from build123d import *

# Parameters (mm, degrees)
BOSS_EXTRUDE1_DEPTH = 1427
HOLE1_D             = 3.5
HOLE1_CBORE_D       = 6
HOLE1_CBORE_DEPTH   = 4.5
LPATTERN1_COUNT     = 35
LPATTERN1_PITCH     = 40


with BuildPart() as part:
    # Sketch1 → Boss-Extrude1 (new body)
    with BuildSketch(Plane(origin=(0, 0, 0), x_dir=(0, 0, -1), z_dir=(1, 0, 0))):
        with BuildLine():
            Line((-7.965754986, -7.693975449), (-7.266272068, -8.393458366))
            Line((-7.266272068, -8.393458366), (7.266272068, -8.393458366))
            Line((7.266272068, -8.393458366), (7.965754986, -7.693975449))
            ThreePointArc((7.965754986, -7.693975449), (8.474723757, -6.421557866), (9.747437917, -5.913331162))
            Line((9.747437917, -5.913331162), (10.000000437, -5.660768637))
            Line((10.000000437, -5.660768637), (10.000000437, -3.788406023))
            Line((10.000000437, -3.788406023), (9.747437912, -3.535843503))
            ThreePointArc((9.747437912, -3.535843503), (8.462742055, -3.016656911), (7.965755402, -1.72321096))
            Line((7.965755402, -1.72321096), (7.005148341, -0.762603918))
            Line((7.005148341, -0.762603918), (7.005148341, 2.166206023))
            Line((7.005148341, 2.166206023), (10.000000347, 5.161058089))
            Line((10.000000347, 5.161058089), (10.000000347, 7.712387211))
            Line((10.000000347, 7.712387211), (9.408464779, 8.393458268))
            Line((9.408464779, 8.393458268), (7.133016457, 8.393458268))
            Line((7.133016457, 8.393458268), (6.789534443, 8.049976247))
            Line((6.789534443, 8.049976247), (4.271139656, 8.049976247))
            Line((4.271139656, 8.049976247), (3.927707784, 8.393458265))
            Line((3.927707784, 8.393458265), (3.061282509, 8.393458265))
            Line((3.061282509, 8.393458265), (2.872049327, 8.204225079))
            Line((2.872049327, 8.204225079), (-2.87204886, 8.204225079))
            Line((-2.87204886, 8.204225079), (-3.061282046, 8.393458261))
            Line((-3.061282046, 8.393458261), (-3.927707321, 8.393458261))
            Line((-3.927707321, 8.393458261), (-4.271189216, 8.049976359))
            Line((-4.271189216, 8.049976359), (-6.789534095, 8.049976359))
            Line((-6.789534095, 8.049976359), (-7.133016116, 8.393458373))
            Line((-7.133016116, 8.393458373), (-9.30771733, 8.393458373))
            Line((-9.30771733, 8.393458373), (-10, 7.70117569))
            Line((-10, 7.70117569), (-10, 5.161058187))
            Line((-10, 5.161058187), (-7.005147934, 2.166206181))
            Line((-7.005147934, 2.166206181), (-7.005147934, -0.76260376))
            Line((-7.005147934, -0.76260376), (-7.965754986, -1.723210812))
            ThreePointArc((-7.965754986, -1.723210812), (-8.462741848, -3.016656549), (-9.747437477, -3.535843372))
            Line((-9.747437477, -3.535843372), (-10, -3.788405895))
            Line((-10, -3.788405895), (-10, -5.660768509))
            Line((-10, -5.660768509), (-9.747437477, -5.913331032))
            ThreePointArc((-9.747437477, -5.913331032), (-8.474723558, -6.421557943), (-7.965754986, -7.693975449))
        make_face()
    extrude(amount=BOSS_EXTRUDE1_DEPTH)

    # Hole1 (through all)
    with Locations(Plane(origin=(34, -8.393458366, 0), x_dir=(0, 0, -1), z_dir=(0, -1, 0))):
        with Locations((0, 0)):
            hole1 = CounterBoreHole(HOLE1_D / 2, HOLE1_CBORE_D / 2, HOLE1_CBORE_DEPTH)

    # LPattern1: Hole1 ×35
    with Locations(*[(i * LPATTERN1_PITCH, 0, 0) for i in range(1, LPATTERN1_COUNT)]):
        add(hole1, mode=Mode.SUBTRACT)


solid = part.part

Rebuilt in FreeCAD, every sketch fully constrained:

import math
import FreeCAD as App
import Part
import Sketcher
Q = App.Units.Quantity

doc = App.newDocument("Part")
body = doc.addObject("PartDesign::Body", "Body")

sketch1 = body.newObject("Sketcher::SketchObject", "Sketch")
sketch1.AttachmentSupport = (doc.getObject("YZ_Plane"), [""])
sketch1.MapMode = "FlatFace"
sketch1.addGeometry(Part.LineSegment(App.Vector(-7.69, 7.97, 0), App.Vector(-8.39, 7.27, 0)), False)
sketch1.addGeometry(Part.LineSegment(App.Vector(-8.39, 7.27, 0), App.Vector(-8.39, -7.27, 0)), False)
sketch1.addGeometry(Part.LineSegment(App.Vector(-8.39, -7.27, 0), App.Vector(-7.69, -7.97, 0)), False)
sketch1.addGeometry(Part.ArcOfCircle(Part.Circle(App.Vector(-7.65, -9.7, 0), App.Vector(0, 0, 1), 1.74), math.radians(-1), math.radians(91)), False)
sketch1.addGeometry(Part.LineSegment(App.Vector(-5.91, -9.75, 0), App.Vector(-5.66, -10, 0)), False)
sketch1.addGeometry(Part.LineSegment(App.Vector(-5.66, -10, 0), App.Vector(-3.79, -10, 0)), False)
sketch1.addGeometry(Part.LineSegment(App.Vector(-3.79, -10, 0), App.Vector(-3.54, -9.75, 0)), False)
sketch1.addGeometry(Part.ArcOfCircle(Part.Circle(App.Vector(-1.8, -9.7, 0), App.Vector(0, 0, 1), 1.74), math.radians(88), math.radians(181)), False)
sketch1.addGeometry(Part.LineSegment(App.Vector(-1.72, -7.97, 0), App.Vector(-0.76, -7.01, 0)), False)
sketch1.addGeometry(Part.LineSegment(App.Vector(-0.76, -7.01, 0), App.Vector(2.17, -7.01, 0)), False)
sketch1.addGeometry(Part.LineSegment(App.Vector(2.17, -7.01, 0), App.Vector(5.16, -10, 0)), False)
sketch1.addGeometry(Part.LineSegment(App.Vector(5.16, -10, 0), App.Vector(7.71, -10, 0)), False)
sketch1.addGeometry(Part.LineSegment(App.Vector(7.71, -10, 0), App.Vector(8.39, -9.41, 0)), False)
sketch1.addGeometry(Part.LineSegment(App.Vector(8.39, -9.41, 0), App.Vector(8.39, -7.13, 0)), False)
sketch1.addGeometry(Part.LineSegment(App.Vector(8.39, -7.13, 0), App.Vector(8.05, -6.79, 0)), False)
sketch1.addGeometry(Part.LineSegment(App.Vector(8.05, -6.79, 0), App.Vector(8.05, -4.27, 0)), False)
sketch1.addGeometry(Part.LineSegment(App.Vector(8.05, -4.27, 0), App.Vector(8.39, -3.93, 0)), False)
sketch1.addGeometry(Part.LineSegment(App.Vector(8.39, -3.93, 0), App.Vector(8.39, -3.06, 0)), False)
sketch1.addGeometry(Part.LineSegment(App.Vector(8.39, -3.06, 0), App.Vector(8.2, -2.87, 0)), False)
sketch1.addGeometry(Part.LineSegment(App.Vector(8.2, -2.87, 0), App.Vector(8.2, 2.87, 0)), False)
sketch1.addGeometry(Part.LineSegment(App.Vector(8.2, 2.87, 0), App.Vector(8.39, 3.06, 0)), False)
sketch1.addGeometry(Part.LineSegment(App.Vector(8.39, 3.06, 0), App.Vector(8.39, 3.93, 0)), False)
sketch1.addGeometry(Part.LineSegment(App.Vector(8.39, 3.93, 0), App.Vector(8.05, 4.27, 0)), False)
sketch1.addGeometry(Part.LineSegment(App.Vector(8.05, 4.27, 0), App.Vector(8.05, 6.79, 0)), False)
sketch1.addGeometry(Part.LineSegment(App.Vector(8.05, 6.79, 0), App.Vector(8.39, 7.13, 0)), False)
sketch1.addGeometry(Part.LineSegment(App.Vector(8.39, 7.13, 0), App.Vector(8.39, 9.31, 0)), False)
sketch1.addGeometry(Part.LineSegment(App.Vector(8.39, 9.31, 0), App.Vector(7.7, 10, 0)), False)
sketch1.addGeometry(Part.LineSegment(App.Vector(7.7, 10, 0), App.Vector(5.16, 10, 0)), False)
sketch1.addGeometry(Part.LineSegment(App.Vector(5.16, 10, 0), App.Vector(2.17, 7.01, 0)), False)
sketch1.addGeometry(Part.LineSegment(App.Vector(2.17, 7.01, 0), App.Vector(-0.76, 7.01, 0)), False)
sketch1.addGeometry(Part.LineSegment(App.Vector(-0.76, 7.01, 0), App.Vector(-1.72, 7.97, 0)), False)
sketch1.addGeometry(Part.ArcOfCircle(Part.Circle(App.Vector(-1.8, 9.7, 0), App.Vector(0, 0, 1), 1.74), math.radians(179), math.radians(272)), False)
sketch1.addGeometry(Part.LineSegment(App.Vector(-3.54, 9.75, 0), App.Vector(-3.79, 10, 0)), False)
sketch1.addGeometry(Part.LineSegment(App.Vector(-3.79, 10, 0), App.Vector(-5.66, 10, 0)), False)
sketch1.addGeometry(Part.LineSegment(App.Vector(-5.66, 10, 0), App.Vector(-5.91, 9.75, 0)), False)
sketch1.addGeometry(Part.ArcOfCircle(Part.Circle(App.Vector(-7.65, 9.7, 0), App.Vector(0, 0, 1), 1.74), math.radians(-91), math.radians(1)), False)
sketch1.addConstraint(Sketcher.Constraint("Coincident", 0, 2, 1, 1))
sketch1.addConstraint(Sketcher.Constraint("Coincident", 1, 2, 2, 1))
sketch1.addConstraint(Sketcher.Constraint("Coincident", 2, 2, 3, 2))
sketch1.addConstraint(Sketcher.Constraint("Coincident", 3, 1, 4, 1))
sketch1.addConstraint(Sketcher.Constraint("Coincident", 4, 2, 5, 1))
sketch1.addConstraint(Sketcher.Constraint("Coincident", 5, 2, 6, 1))
sketch1.addConstraint(Sketcher.Constraint("Coincident", 6, 2, 7, 2))
sketch1.addConstraint(Sketcher.Constraint("Coincident", 7, 1, 8, 1))
sketch1.addConstraint(Sketcher.Constraint("Coincident", 8, 2, 9, 1))
sketch1.addConstraint(Sketcher.Constraint("Coincident", 9, 2, 10, 1))
sketch1.addConstraint(Sketcher.Constraint("Coincident", 10, 2, 11, 1))
sketch1.addConstraint(Sketcher.Constraint("Coincident", 11, 2, 12, 1))
sketch1.addConstraint(Sketcher.Constraint("Coincident", 12, 2, 13, 1))
sketch1.addConstraint(Sketcher.Constraint("Coincident", 13, 2, 14, 1))
sketch1.addConstraint(Sketcher.Constraint("Coincident", 14, 2, 15, 1))
sketch1.addConstraint(Sketcher.Constraint("Coincident", 15, 2, 16, 1))
sketch1.addConstraint(Sketcher.Constraint("Coincident", 16, 2, 17, 1))
sketch1.addConstraint(Sketcher.Constraint("Coincident", 17, 2, 18, 1))
sketch1.addConstraint(Sketcher.Constraint("Coincident", 18, 2, 19, 1))
sketch1.addConstraint(Sketcher.Constraint("Coincident", 19, 2, 20, 1))
sketch1.addConstraint(Sketcher.Constraint("Coincident", 20, 2, 21, 1))
sketch1.addConstraint(Sketcher.Constraint("Coincident", 21, 2, 22, 1))
sketch1.addConstraint(Sketcher.Constraint("Coincident", 22, 2, 23, 1))
sketch1.addConstraint(Sketcher.Constraint("Coincident", 23, 2, 24, 1))
sketch1.addConstraint(Sketcher.Constraint("Coincident", 24, 2, 25, 1))
sketch1.addConstraint(Sketcher.Constraint("Coincident", 25, 2, 26, 1))
sketch1.addConstraint(Sketcher.Constraint("Coincident", 26, 2, 27, 1))
sketch1.addConstraint(Sketcher.Constraint("Coincident", 27, 2, 28, 1))
sketch1.addConstraint(Sketcher.Constraint("Coincident", 28, 2, 29, 1))
sketch1.addConstraint(Sketcher.Constraint("Coincident", 29, 2, 30, 1))
sketch1.addConstraint(Sketcher.Constraint("Coincident", 30, 2, 31, 2))
sketch1.addConstraint(Sketcher.Constraint("Coincident", 31, 1, 32, 1))
sketch1.addConstraint(Sketcher.Constraint("Coincident", 32, 2, 33, 1))
sketch1.addConstraint(Sketcher.Constraint("Coincident", 33, 2, 34, 1))
sketch1.addConstraint(Sketcher.Constraint("Coincident", 34, 2, 35, 2))
sketch1.addConstraint(Sketcher.Constraint("Coincident", 35, 1, 0, 1))
sketch1.addConstraint(Sketcher.Constraint("Vertical", 1))
sketch1.addConstraint(Sketcher.Constraint("Horizontal", 5))
sketch1.addConstraint(Sketcher.Constraint("Horizontal", 9))
sketch1.addConstraint(Sketcher.Constraint("Horizontal", 11))
sketch1.addConstraint(Sketcher.Constraint("Vertical", 13))
sketch1.addConstraint(Sketcher.Constraint("Vertical", 15))
sketch1.addConstraint(Sketcher.Constraint("Vertical", 17))
sketch1.addConstraint(Sketcher.Constraint("Vertical", 19))
sketch1.addConstraint(Sketcher.Constraint("Vertical", 21))
sketch1.addConstraint(Sketcher.Constraint("Vertical", 23))
sketch1.addConstraint(Sketcher.Constraint("Vertical", 25))
sketch1.addConstraint(Sketcher.Constraint("Horizontal", 27))
sketch1.addConstraint(Sketcher.Constraint("Horizontal", 29))
sketch1.addConstraint(Sketcher.Constraint("Horizontal", 33))
sketch1.addConstraint(Sketcher.Constraint("Equal", 3, 7))
sketch1.addConstraint(Sketcher.Constraint("Equal", 7, 31))
sketch1.addConstraint(Sketcher.Constraint("Equal", 31, 35))
sketch1.addConstraint(Sketcher.Constraint("Symmetric", 7, 3, 31, 3, -1))
sketch1.addConstraint(Sketcher.Constraint("Symmetric", 3, 3, 35, 3, -1))
sketch1.addConstraint(Sketcher.Constraint("Symmetric", 17, 2, 20, 2, -1))
sketch1.addConstraint(Sketcher.Constraint("Symmetric", 14, 2, 23, 2, -1))
sketch1.addConstraint(Sketcher.Constraint("Symmetric", 13, 2, 24, 2, -1))
sketch1.addConstraint(Sketcher.Constraint("Symmetric", 10, 2, 27, 2, -1))
sketch1.addConstraint(Sketcher.Constraint("Symmetric", 9, 2, 28, 2, -1))
sketch1.addConstraint(Sketcher.Constraint("Symmetric", 5, 2, 32, 2, -1))
sketch1.addConstraint(Sketcher.Constraint("Perpendicular", 0, 2))
sketch1.addConstraint(Sketcher.Constraint("Parallel", 2, 4))
sketch1.addConstraint(Sketcher.Constraint("Perpendicular", 4, 6))
sketch1.addConstraint(Sketcher.Constraint("Parallel", 6, 8))
sketch1.addConstraint(Sketcher.Constraint("Perpendicular", 8, 10))
sketch1.addConstraint(Sketcher.Constraint("Parallel", 10, 14))
sketch1.addConstraint(Sketcher.Constraint("Parallel", 14, 18))
sketch1.addConstraint(Sketcher.Constraint("Perpendicular", 18, 20))
sketch1.addConstraint(Sketcher.Constraint("Perpendicular", 20, 22))
sketch1.addConstraint(Sketcher.Constraint("Perpendicular", 22, 24))
sketch1.addConstraint(Sketcher.Constraint("Perpendicular", 24, 26))
sketch1.addConstraint(Sketcher.Constraint("Perpendicular", 28, 30))
sketch1.addConstraint(Sketcher.Constraint("Parallel", 30, 32))
sketch1.addConstraint(Sketcher.Constraint("Perpendicular", 32, 34))
sketch1.addConstraint(Sketcher.Constraint("Horizontal", 3, 1, 6, 2))
sketch1.addConstraint(Sketcher.Constraint("Horizontal", 2, 2, 7, 1))
sketch1.addConstraint(Sketcher.Constraint("Horizontal", 5, 2, 10, 2))
sketch1.addConstraint(Sketcher.Constraint("Horizontal", 31, 1, 34, 2))
sketch1.addConstraint(Sketcher.Constraint("Horizontal", 30, 2, 35, 1))
sketch1.addConstraint(Sketcher.Constraint("Vertical", 13, 2, 16, 2))
sketch1.addConstraint(Sketcher.Constraint("Vertical", 8, 2, 29, 2))
sketch1.addConstraint(Sketcher.Constraint("Equal", 17, 21))
sketch1.addConstraint(Sketcher.Constraint("DistanceY", 4, 2, -1, 1, Q("10 mm")))
sketch1.addConstraint(Sketcher.Constraint("Radius", 3, Q("1.738311 mm")))
sketch1.addConstraint(Sketcher.Constraint("DistanceY", 19, 1, 19, 2, Q("5.744098 mm")))
sketch1.addConstraint(Sketcher.Constraint("DistanceY", 25, 1, 25, 2, Q("2.174701 mm")))
sketch1.addConstraint(Sketcher.Constraint("DistanceX", 9, 1, 9, 2, Q("2.92881 mm")))
sketch1.addConstraint(Sketcher.Constraint("DistanceX", 11, 1, 11, 2, Q("2.551329 mm")))
sketch1.addConstraint(Sketcher.Constraint("DistanceY", 13, 1, 13, 2, Q("2.275448 mm")))
sketch1.addConstraint(Sketcher.Constraint("DistanceY", 3, 1, 3, 3, Q("0.043901 mm")))
sketch1.addConstraint(Sketcher.Constraint("DistanceX", 6, 2, 10, 2, Q("8.696902 mm")))
sketch1.addConstraint(Sketcher.Constraint("DistanceX", 7, 1, 11, 2, Q("9.435598 mm")))
sketch1.addConstraint(Sketcher.Constraint("DistanceX", 10, 2, 12, 2, Q("3.2324 mm")))
sketch1.addConstraint(Sketcher.Constraint("DistanceX", 26, 2, 23, 2, Q("0.348801 mm")))
sketch1.addConstraint(Sketcher.Constraint("Distance", 0, Q("0.989218 mm")))
sketch1.addConstraint(Sketcher.Constraint("Distance", 10, Q("4.23536 mm")))
sketch1.addConstraint(Sketcher.Constraint("Distance", 16, Q("0.485721 mm")))
sketch1.addConstraint(Sketcher.Constraint("DistanceX", 5, 1, 5, 2, Q("1.872363 mm")))
sketch1.addConstraint(Sketcher.Constraint("DistanceX", 27, 2, 27, 1, Q("2.540118 mm")))
sketch1.addConstraint(Sketcher.Constraint("DistanceY", 15, 1, 15, 2, Q("2.518395 mm")))
sketch1.addConstraint(Sketcher.Constraint("DistanceY", 17, 1, 17, 2, Q("0.866425 mm")))
sketch1.addConstraint(Sketcher.Constraint("DistanceX", 0, 2, -1, 1, Q("8.393458 mm")))
sketch1.addConstraint(Sketcher.Constraint("DistanceX", 3, 1, -1, 1, Q("5.913331 mm")))
pad1 = body.newObject("PartDesign::Pad", "Pad")
pad1.Profile = sketch1
pad1.Length = 1427

sketch2 = body.newObject("Sketcher::SketchObject", "Sketch001")
sketch2.AttachmentSupport = (doc.getObject("XZ_Plane"), [""])
sketch2.MapMode = "FlatFace"
sketch2.AttachmentOffset = App.Placement(App.Vector(0, 0, 8.393458), App.Rotation())
sketch2.addGeometry(Part.Circle(App.Vector(34, 0, 0), App.Vector(0, 0, 1), 1.8), False)
sketch2.addConstraint(Sketcher.Constraint("PointOnObject", 0, 3, -1))
sketch2.addConstraint(Sketcher.Constraint("Diameter", 0, Q("3.5 mm")))
sketch2.addConstraint(Sketcher.Constraint("DistanceX", -1, 1, 0, 3, Q("34 mm")))
doc.recompute()
hole = body.newObject("PartDesign::Hole", "Hole")
hole.Profile = sketch2
hole.ThreadType = "None"
hole.Diameter = 3.5
hole.DepthType = "ThroughAll"
hole.HoleCutType = "Counterbore"
hole.HoleCutDiameter = 6
hole.HoleCutDepth = 4.5
doc.recompute()

linearpattern = body.newObject("PartDesign::LinearPattern", "LinearPattern")
linearpattern.Originals = [hole]
linearpattern.Direction = (doc.getObject("X_Axis"), [""])
linearpattern.Mode = "offset"
linearpattern.Offset = 40
linearpattern.Occurrences = 35
body.Tip = linearpattern

doc.recompute()
